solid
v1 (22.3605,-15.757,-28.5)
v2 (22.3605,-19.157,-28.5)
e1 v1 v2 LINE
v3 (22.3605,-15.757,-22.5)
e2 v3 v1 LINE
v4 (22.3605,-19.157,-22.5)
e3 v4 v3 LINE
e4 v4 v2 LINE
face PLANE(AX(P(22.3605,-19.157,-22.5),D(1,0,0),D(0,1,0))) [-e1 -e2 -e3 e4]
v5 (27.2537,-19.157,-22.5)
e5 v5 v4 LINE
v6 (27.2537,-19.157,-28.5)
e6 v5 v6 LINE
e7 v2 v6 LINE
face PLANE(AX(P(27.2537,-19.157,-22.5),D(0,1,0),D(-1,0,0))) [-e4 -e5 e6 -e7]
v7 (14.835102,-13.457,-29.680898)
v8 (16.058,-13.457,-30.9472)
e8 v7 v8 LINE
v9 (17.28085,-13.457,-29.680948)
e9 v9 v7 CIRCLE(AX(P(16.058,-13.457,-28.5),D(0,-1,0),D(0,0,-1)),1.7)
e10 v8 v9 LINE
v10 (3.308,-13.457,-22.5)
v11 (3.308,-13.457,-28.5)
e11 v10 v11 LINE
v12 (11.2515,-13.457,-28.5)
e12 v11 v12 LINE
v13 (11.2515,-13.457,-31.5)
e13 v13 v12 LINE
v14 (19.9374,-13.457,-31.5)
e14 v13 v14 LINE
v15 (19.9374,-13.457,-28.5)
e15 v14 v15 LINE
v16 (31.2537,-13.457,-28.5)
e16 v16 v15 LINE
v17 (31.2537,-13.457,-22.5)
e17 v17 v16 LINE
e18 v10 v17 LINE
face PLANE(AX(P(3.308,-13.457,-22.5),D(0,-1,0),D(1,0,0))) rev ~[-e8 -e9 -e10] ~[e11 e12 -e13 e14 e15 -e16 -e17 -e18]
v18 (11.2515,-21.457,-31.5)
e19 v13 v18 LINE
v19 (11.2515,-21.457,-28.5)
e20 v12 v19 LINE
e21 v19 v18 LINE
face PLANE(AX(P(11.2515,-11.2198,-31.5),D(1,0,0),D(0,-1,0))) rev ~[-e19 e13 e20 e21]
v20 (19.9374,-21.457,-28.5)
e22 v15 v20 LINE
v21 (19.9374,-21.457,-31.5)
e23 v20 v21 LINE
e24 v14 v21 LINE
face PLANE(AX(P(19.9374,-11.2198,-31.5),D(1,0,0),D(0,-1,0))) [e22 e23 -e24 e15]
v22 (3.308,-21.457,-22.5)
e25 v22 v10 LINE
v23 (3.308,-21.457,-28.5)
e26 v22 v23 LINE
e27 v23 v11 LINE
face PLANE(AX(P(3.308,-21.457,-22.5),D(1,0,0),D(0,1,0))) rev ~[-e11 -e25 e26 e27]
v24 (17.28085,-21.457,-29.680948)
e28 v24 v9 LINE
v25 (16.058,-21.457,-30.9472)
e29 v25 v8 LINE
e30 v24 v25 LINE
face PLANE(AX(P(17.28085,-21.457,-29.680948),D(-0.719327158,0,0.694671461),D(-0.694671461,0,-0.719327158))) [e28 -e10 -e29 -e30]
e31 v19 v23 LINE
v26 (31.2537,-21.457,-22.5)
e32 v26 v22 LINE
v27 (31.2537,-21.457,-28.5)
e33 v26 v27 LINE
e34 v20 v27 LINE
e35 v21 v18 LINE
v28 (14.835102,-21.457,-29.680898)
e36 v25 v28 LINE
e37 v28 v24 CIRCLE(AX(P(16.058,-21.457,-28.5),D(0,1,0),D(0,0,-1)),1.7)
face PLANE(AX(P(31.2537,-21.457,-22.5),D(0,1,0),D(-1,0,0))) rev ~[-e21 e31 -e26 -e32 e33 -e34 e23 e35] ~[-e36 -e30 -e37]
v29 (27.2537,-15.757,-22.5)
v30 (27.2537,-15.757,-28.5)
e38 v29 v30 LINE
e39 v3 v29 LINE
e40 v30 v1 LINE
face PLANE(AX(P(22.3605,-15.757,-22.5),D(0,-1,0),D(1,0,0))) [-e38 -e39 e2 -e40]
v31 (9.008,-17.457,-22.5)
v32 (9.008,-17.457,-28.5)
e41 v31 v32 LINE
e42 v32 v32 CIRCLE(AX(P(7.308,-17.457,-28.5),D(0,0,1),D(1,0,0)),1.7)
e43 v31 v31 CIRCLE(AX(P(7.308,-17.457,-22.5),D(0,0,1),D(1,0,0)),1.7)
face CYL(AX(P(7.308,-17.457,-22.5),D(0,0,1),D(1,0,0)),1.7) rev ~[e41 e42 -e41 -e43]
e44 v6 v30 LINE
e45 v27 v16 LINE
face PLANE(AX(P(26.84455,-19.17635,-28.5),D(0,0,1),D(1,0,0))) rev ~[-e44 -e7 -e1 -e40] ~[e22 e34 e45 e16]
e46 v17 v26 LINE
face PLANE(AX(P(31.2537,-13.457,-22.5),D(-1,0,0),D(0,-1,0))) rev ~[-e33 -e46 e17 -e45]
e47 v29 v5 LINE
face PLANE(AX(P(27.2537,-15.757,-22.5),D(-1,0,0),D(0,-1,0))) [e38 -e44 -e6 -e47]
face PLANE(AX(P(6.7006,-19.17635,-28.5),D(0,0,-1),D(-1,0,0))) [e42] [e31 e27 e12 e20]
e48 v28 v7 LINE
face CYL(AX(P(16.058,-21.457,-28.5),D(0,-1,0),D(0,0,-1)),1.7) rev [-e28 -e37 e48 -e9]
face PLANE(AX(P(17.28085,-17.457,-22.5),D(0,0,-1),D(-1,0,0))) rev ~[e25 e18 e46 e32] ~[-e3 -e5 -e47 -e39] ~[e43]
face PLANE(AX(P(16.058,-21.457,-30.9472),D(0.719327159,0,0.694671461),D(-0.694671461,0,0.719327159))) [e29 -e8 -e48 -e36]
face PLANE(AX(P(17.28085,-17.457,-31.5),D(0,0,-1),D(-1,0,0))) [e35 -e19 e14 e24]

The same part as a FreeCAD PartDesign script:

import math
import FreeCAD as App
import Part
import Sketcher
from FreeCAD import Vector
Q = App.Units.Quantity

doc = App.newDocument("Part")
params = doc.addObject("Spreadsheet::Sheet", "Params")
for row, (alias, value) in enumerate([
    ("sketch1_diameter", "3.4 mm"),
    ("sketch1_height", "8 mm"),
    ("sketch1_height2", "3.4 mm"),
    ("pad1_length", "9 mm"),
    ("sketch2_radius", "1.7 mm"),
    ("pocket2_length", "3 mm"),
], start=1):
    params.set(f"A{row}", alias)
    params.set(f"B{row}", "=" + value)
    params.setAlias(f"B{row}", alias)

body = doc.addObject("PartDesign::Body", "Body")

# Sketch on XY plane
sketch1 = doc.addObject("Sketcher::SketchObject", "Sketch")
body.addObject(sketch1)
sketch1.AttachmentSupport = (doc.XY_Plane, [""])
sketch1.MapMode = "FlatFace"
sketch1.AttachmentOffset = App.Placement(Vector(0, 0, -22.5), App.Rotation())
sketch1.addGeometry(Part.LineSegment(Vector(31.2537, -13.457, 0), Vector(3.308, -13.457, 0)), False)
sketch1.addGeometry(Part.LineSegment(Vector(3.308, -13.457, 0), Vector(3.308, -21.457, 0)), False)
sketch1.addGeometry(Part.LineSegment(Vector(3.308, -21.457, 0), Vector(31.2537, -21.457, 0)), False)
sketch1.addGeometry(Part.LineSegment(Vector(31.2537, -21.457, 0), Vector(31.2537, -13.457, 0)), False)
sketch1.addGeometry(Part.Circle(Vector(7.308, -17.457, 0), Vector(0, 0, 1), 1.7), False)
sketch1.addGeometry(Part.LineSegment(Vector(27.2537, -19.157, 0), Vector(22.3605, -19.157, 0)), False)
sketch1.addGeometry(Part.LineSegment(Vector(22.3605, -19.157, 0), Vector(22.3605, -15.757, 0)), False)
sketch1.addGeometry(Part.LineSegment(Vector(22.3605, -15.757, 0), Vector(27.2537, -15.757, 0)), False)
sketch1.addGeometry(Part.LineSegment(Vector(27.2537, -15.757, 0), Vector(27.2537, -19.157, 0)), False)
sketch1.addConstraint(Sketcher.Constraint("Coincident", 0, 2, 1, 1))
sketch1.addConstraint(Sketcher.Constraint("Coincident", 1, 2, 2, 1))
sketch1.addConstraint(Sketcher.Constraint("Coincident", 2, 2, 3, 1))
sketch1.addConstraint(Sketcher.Constraint("Coincident", 3, 2, 0, 1))
sketch1.addConstraint(Sketcher.Constraint("Coincident", 5, 2, 6, 1))
sketch1.addConstraint(Sketcher.Constraint("Coincident", 6, 2, 7, 1))
sketch1.addConstraint(Sketcher.Constraint("Coincident", 7, 2, 8, 1))
sketch1.addConstraint(Sketcher.Constraint("Coincident", 8, 2, 5, 1))
sketch1.addConstraint(Sketcher.Constraint("Horizontal", 0))
sketch1.addConstraint(Sketcher.Constraint("Vertical", 1))
sketch1.addConstraint(Sketcher.Constraint("Horizontal", 2))
sketch1.addConstraint(Sketcher.Constraint("Vertical", 3))
sketch1.addConstraint(Sketcher.Constraint("Horizontal", 5))
sketch1.addConstraint(Sketcher.Constraint("Vertical", 6))
sketch1.addConstraint(Sketcher.Constraint("Horizontal", 7))
sketch1.addConstraint(Sketcher.Constraint("Vertical", 8))
sketch1.addConstraint(Sketcher.Constraint("Diameter", 4, Q("3.4 mm")))
sketch1.addConstraint(Sketcher.Constraint("DistanceY", 1, 2, 1, 1, Q("8 mm")))
sketch1.addConstraint(Sketcher.Constraint("DistanceY", 6, 1, 6, 2, Q("3.4 mm")))
sketch1.addConstraint(Sketcher.Constraint("DistanceX", 0, 2, 4, 3, Q("4 mm")))
sketch1.addConstraint(Sketcher.Constraint("DistanceY", 4, 3, 0, 2, Q("4 mm")))
sketch1.addConstraint(Sketcher.Constraint("DistanceX", 7, 2, 3, 2, Q("4 mm")))
sketch1.addConstraint(Sketcher.Constraint("DistanceY", 2, 2, 5, 2, Q("2.3 mm")))
sketch1.addConstraint(Sketcher.Constraint("DistanceX", 0, 2, 0, 1, Q("27.9457 mm")))
sketch1.addConstraint(Sketcher.Constraint("DistanceX", 5, 2, 5, 1, Q("4.8932 mm")))
sketch1.addConstraint(Sketcher.Constraint("DistanceX", -1, 1, 4, 3, Q("7.308 mm")))
sketch1.addConstraint(Sketcher.Constraint("DistanceY", 4, 3, -1, 1, Q("17.457 mm")))
sketch1.setExpression("Constraints[16]", "Params.sketch1_diameter")
sketch1.setExpression("Constraints[17]", "Params.sketch1_height")
sketch1.setExpression("Constraints[18]", "Params.sketch1_height2")
pad1 = doc.addObject("PartDesign::Pad", "Pad")
body.addObject(pad1)
pad1.Profile = sketch1
pad1.setExpression("Length", "Params.pad1_length")
pad1.Reversed = True

# Sketch on XZ plane
sketch2 = doc.addObject("Sketcher::SketchObject", "Sketch001")
body.addObject(sketch2)
sketch2.AttachmentSupport = (doc.XZ_Plane, [""])
sketch2.MapMode = "FlatFace"
sketch2.AttachmentOffset = App.Placement(Vector(0, 0, 21.457), App.Rotation())
sketch2.addGeometry(Part.LineSegment(Vector(16.058, -30.9472, 0), Vector(17.2808, -29.6809, 0)), False)
sketch2.addGeometry(Part.ArcOfCircle(Part.Circle(Vector(16.058, -28.5, 0), Vector(0, 0, 1), 1.700003), math.radians(-44.001352), math.radians(223.999011)), False)
sketch2.addGeometry(Part.LineSegment(Vector(14.8351, -29.6809, 0), Vector(16.058, -30.9472, 0)), False)
sketch2.addConstraint(Sketcher.Constraint("Tangent", 0, 2, 1, 1))
sketch2.addConstraint(Sketcher.Constraint("Tangent", 1, 2, 2, 1))
sketch2.addConstraint(Sketcher.Constraint("Coincident", 2, 2, 0, 1))
sketch2.addConstraint(Sketcher.Constraint("Horizontal", 0, 2, 1, 2))
sketch2.addConstraint(Sketcher.Constraint("Radius", 1, Q("1.7 mm")))
sketch2.addConstraint(Sketcher.Constraint("Angle", 2, Q("-45.9989 deg")))
sketch2.addConstraint(Sketcher.Constraint("DistanceY", 1, 3, -1, 1, Q("28.5 mm")))
sketch2.addConstraint(Sketcher.Constraint("DistanceX", -1, 1, 1, 3, Q("16.058 mm")))
sketch2.setExpression("Constraints[4]", "Params.sketch2_radius")
pocket1 = doc.addObject("PartDesign::Pocket", "Pocket")
body.addObject(pocket1)
pocket1.Profile = sketch2
pocket1.Type = "UpToFirst"

# Sketch on XY plane
sketch3 = doc.addObject("Sketcher::SketchObject", "Sketch002")
body.addObject(sketch3)
sketch3.AttachmentSupport = (doc.XY_Plane, [""])
sketch3.MapMode = "FlatFace"
sketch3.AttachmentOffset = App.Placement(Vector(0, 0, -31.5), App.Rotation())
sketch3.addGeometry(Part.LineSegment(Vector(33.7517, -11.2198, 0), Vector(33.7517, -27.1329, 0)), False)
sketch3.addGeometry(Part.LineSegment(Vector(33.7517, -27.1329, 0), Vector(19.9374, -27.1329, 0)), False)
sketch3.addGeometry(Part.LineSegment(Vector(19.9374, -27.1329, 0), Vector(19.9374, -11.2198, 0)), False)
sketch3.addGeometry(Part.LineSegment(Vector(19.9374, -11.2198, 0), Vector(33.7517, -11.2198, 0)), False)
sketch3.addGeometry(Part.LineSegment(Vector(2.1497, -11.2198, 0), Vector(11.2515, -11.2198, 0)), False)
sketch3.addGeometry(Part.LineSegment(Vector(11.2515, -11.2198, 0), Vector(11.2515, -27.1329, 0)), False)
sketch3.addGeometry(Part.LineSegment(Vector(11.2515, -27.1329, 0), Vector(2.1497, -27.1329, 0)), False)
sketch3.addGeometry(Part.LineSegment(Vector(2.1497, -27.1329, 0), Vector(2.1497, -11.2198, 0)), False)
sketch3.addConstraint(Sketcher.Constraint("Coincident", 0, 2, 1, 1))
sketch3.addConstraint(Sketcher.Constraint("Coincident", 1, 2, 2, 1))
sketch3.addConstraint(Sketcher.Constraint("Coincident", 2, 2, 3, 1))
sketch3.addConstraint(Sketcher.Constraint("Coincident", 3, 2, 0, 1))
sketch3.addConstraint(Sketcher.Constraint("Coincident", 4, 2, 5, 1))
sketch3.addConstraint(Sketcher.Constraint("Coincident", 5, 2, 6, 1))
sketch3.addConstraint(Sketcher.Constraint("Coincident", 6, 2, 7, 1))
sketch3.addConstraint(Sketcher.Constraint("Coincident", 7, 2, 4, 1))
sketch3.addConstraint(Sketcher.Constraint("Vertical", 0))
sketch3.addConstraint(Sketcher.Constraint("Horizontal", 1))
sketch3.addConstraint(Sketcher.Constraint("Vertical", 2))
sketch3.addConstraint(Sketcher.Constraint("Horizontal", 3))
sketch3.addConstraint(Sketcher.Constraint("Horizontal", 4))
sketch3.addConstraint(Sketcher.Constraint("Vertical", 5))
sketch3.addConstraint(Sketcher.Constraint("Horizontal", 6))
sketch3.addConstraint(Sketcher.Constraint("Vertical", 7))
sketch3.addConstraint(Sketcher.Constraint("Horizontal", 3, 2, 4, 2))
sketch3.addConstraint(Sketcher.Constraint("Horizontal", 1, 2, 5, 2))
sketch3.addConstraint(Sketcher.Constraint("DistanceY", 0, 2, 0, 1, Q("15.913 mm")))
sketch3.addConstraint(Sketcher.Constraint("DistanceX", 1, 2, 1, 1, Q("13.8143 mm")))
sketch3.addConstraint(Sketcher.Constraint("DistanceX", 4, 1, 4, 2, Q("9.1018 mm")))
sketch3.addConstraint(Sketcher.Constraint("DistanceY", 0, 2, -1, 1, Q("27.133 mm")))
sketch3.addConstraint(Sketcher.Constraint("DistanceX", 4, 2, 2, 2, Q("8.686 mm")))
sketch3.addConstraint(Sketcher.Constraint("DistanceX", -1, 1, 0, 2, Q("33.7517 mm")))
pocket2 = doc.addObject("PartDesign::Pocket", "Pocket001")
body.addObject(pocket2)
pocket2.Profile = sketch3
pocket2.setExpression("Length", "Params.pocket2_length")
pocket2.Reversed = True

doc.recompute()
